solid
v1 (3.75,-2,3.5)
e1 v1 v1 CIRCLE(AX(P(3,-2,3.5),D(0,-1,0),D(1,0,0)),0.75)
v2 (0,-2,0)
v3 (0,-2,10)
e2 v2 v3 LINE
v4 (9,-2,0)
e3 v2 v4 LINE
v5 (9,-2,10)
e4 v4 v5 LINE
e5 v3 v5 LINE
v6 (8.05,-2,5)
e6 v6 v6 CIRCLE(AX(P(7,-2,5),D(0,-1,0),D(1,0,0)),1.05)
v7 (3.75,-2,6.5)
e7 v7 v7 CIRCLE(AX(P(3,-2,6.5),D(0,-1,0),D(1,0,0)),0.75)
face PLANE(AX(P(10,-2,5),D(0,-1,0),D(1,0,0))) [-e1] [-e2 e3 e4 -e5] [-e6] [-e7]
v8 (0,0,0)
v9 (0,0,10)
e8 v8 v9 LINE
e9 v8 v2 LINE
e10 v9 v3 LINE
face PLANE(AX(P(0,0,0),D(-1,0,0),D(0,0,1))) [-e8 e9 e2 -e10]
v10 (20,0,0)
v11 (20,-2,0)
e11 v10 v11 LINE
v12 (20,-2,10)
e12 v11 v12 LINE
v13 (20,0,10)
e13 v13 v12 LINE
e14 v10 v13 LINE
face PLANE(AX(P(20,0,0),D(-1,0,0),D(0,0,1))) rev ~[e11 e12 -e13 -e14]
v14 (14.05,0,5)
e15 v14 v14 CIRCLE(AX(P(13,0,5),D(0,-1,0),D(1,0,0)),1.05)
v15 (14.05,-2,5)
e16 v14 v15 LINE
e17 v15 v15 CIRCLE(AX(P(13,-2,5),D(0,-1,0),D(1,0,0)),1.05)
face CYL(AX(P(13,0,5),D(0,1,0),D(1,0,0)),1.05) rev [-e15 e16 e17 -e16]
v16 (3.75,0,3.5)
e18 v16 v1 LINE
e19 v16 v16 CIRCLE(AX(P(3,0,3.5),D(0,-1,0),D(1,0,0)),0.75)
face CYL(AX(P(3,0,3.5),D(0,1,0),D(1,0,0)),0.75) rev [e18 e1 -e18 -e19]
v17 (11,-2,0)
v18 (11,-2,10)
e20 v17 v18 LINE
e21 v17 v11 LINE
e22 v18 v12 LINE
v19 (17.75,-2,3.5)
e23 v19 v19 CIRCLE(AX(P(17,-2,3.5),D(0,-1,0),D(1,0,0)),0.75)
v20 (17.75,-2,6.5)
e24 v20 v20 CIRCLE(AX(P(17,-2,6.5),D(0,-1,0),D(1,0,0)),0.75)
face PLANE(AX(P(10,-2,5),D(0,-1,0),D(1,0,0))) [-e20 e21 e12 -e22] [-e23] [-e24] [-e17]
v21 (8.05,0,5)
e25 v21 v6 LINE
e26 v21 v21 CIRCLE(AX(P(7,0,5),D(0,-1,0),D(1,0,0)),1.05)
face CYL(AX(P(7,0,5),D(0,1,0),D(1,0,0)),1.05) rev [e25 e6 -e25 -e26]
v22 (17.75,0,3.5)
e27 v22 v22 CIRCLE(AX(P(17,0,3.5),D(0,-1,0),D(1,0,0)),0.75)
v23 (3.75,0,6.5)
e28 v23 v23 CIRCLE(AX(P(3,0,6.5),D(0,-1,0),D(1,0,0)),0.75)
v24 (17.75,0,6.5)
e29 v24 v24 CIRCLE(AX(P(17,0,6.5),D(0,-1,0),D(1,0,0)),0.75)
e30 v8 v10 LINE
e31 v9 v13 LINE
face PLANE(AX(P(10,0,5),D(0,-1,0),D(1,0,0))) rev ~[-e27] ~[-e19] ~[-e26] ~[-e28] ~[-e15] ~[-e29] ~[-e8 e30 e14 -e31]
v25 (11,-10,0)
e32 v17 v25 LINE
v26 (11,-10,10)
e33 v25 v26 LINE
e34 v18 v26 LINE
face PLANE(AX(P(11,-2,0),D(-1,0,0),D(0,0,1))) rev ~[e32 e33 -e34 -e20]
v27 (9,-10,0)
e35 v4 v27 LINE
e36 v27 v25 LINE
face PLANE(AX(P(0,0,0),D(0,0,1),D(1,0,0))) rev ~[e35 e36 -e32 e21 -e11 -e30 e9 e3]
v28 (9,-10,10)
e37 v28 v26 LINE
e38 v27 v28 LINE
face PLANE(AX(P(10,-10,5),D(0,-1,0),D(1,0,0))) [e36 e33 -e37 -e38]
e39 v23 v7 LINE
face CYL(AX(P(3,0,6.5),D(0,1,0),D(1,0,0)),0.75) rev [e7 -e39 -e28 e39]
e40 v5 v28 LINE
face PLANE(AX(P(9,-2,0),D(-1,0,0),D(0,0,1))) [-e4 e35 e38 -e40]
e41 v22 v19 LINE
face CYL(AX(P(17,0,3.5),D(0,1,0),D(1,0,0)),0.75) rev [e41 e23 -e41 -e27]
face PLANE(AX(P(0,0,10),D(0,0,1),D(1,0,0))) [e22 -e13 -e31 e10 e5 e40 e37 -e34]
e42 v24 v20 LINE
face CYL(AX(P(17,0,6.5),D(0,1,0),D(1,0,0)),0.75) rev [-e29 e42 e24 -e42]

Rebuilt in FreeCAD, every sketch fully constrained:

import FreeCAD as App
import Part
import Sketcher
from FreeCAD import Vector


def add_polygon(sketch, points):
    """Adds a closed chain of lines whose ends are joined by coincident constraints."""
    first, n = sketch.GeometryCount, len(points)
    for a, b in zip(points, points[1:] + points[:1]):
        sketch.addGeometry(Part.LineSegment(App.Vector(*a, 0), App.Vector(*b, 0)), False)
    for i in range(n):
        sketch.addConstraint(Sketcher.Constraint("Coincident", first + i, 2, first + (i + 1) % n, 1))

doc = App.newDocument("Part")
body = doc.addObject("PartDesign::Body", "Body")

# Sketch on XZ plane
sketch1 = body.newObject("Sketcher::SketchObject", "Sketch")
sketch1.AttachmentSupport = (doc.getObject("XZ_Plane"), [""])
sketch1.MapMode = "FlatFace"
add_polygon(sketch1, [(0, 10), (0, 0), (20, 0), (20, 10)])  # lines 0-3
sketch1.addGeometry(Part.Circle(Vector(3, 3.5, 0), Vector(0, 0, 1), 0.8), False)  # 4
sketch1.addGeometry(Part.Circle(Vector(17, 3.5, 0), Vector(0, 0, 1), 0.8), False)  # 5
sketch1.addGeometry(Part.Circle(Vector(7, 5, 0), Vector(0, 0, 1), 1.1), False)  # 6
sketch1.addGeometry(Part.Circle(Vector(3, 6.5, 0), Vector(0, 0, 1), 0.8), False)  # 7
sketch1.addGeometry(Part.Circle(Vector(13, 5, 0), Vector(0, 0, 1), 1.1), False)  # 8
sketch1.addGeometry(Part.Circle(Vector(17, 6.5, 0), Vector(0, 0, 1), 0.8), False)  # 9
sketch1.addConstraint([
    Sketcher.Constraint("Vertical", 0),
    Sketcher.Constraint("Horizontal", 1),
    Sketcher.Constraint("Vertical", 2),
    Sketcher.Constraint("Horizontal", 3),
    Sketcher.Constraint("Coincident", 0, 2, -1, 1),
    Sketcher.Constraint("Equal", 4, 5),
    Sketcher.Constraint("Equal", 5, 7),
    Sketcher.Constraint("Equal", 6, 8),
    Sketcher.Constraint("Equal", 7, 9),
    Sketcher.Constraint("Horizontal", 4, 3, 5, 3),
    Sketcher.Constraint("Horizontal", 6, 3, 8, 3),
    Sketcher.Constraint("Horizontal", 7, 3, 9, 3),
    Sketcher.Constraint("Vertical", 4, 3, 7, 3),
    Sketcher.Constraint("Vertical", 5, 3, 9, 3),
    Sketcher.Constraint("Diameter", 4, 1.5),
    Sketcher.Constraint("Diameter", 6, 2.1),
    Sketcher.Constraint("DistanceX", 1, 1, 1, 2, 20.0),
    Sketcher.Constraint("DistanceY", 0, 2, 0, 1, 10.0),
    Sketcher.Constraint("DistanceX", -1, 1, 4, 3, 3.0),
    Sketcher.Constraint("DistanceX", -1, 1, 5, 3, 17.0),
    Sketcher.Constraint("DistanceX", -1, 1, 6, 3, 7.0),
    Sketcher.Constraint("DistanceY", -1, 1, 6, 3, 5.0),
    Sketcher.Constraint("DistanceX", -1, 1, 8, 3, 13.0),
    Sketcher.Constraint("DistanceY", 4, 3, 7, 3, 3.0),
    Sketcher.Constraint("DistanceY", -1, 1, 4, 3, 3.5),
])
pad1 = body.newObject("PartDesign::Pad", "Pad")
pad1.Profile = sketch1
pad1.Length = 2

# Sketch on XZ plane
sketch2 = body.newObject("Sketcher::SketchObject", "Sketch001")
sketch2.AttachmentSupport = (doc.getObject("XZ_Plane"), [""])
sketch2.MapMode = "FlatFace"
sketch2.AttachmentOffset = App.Placement(Vector(0, 0, 2), App.Rotation())
add_polygon(sketch2, [(9, 10), (9, 0), (11, 0), (11, 10)])  # lines 0-3
sketch2.addConstraint([
    Sketcher.Constraint("Vertical", 0),
    Sketcher.Constraint("Horizontal", 1),
    Sketcher.Constraint("Vertical", 2),
    Sketcher.Constraint("Horizontal", 3),
    Sketcher.Constraint("PointOnObject", 0, 2, -1),
    Sketcher.Constraint("DistanceX", 1, 1, 1, 2, 2.0),
    Sketcher.Constraint("DistanceY", 0, 2, 0, 1, 10.0),
    Sketcher.Constraint("DistanceX", -1, 1, 0, 2, 9.0),
])
pad2 = body.newObject("PartDesign::Pad", "Pad001")
pad2.Profile = sketch2
pad2.Length = 8

doc.recompute()
